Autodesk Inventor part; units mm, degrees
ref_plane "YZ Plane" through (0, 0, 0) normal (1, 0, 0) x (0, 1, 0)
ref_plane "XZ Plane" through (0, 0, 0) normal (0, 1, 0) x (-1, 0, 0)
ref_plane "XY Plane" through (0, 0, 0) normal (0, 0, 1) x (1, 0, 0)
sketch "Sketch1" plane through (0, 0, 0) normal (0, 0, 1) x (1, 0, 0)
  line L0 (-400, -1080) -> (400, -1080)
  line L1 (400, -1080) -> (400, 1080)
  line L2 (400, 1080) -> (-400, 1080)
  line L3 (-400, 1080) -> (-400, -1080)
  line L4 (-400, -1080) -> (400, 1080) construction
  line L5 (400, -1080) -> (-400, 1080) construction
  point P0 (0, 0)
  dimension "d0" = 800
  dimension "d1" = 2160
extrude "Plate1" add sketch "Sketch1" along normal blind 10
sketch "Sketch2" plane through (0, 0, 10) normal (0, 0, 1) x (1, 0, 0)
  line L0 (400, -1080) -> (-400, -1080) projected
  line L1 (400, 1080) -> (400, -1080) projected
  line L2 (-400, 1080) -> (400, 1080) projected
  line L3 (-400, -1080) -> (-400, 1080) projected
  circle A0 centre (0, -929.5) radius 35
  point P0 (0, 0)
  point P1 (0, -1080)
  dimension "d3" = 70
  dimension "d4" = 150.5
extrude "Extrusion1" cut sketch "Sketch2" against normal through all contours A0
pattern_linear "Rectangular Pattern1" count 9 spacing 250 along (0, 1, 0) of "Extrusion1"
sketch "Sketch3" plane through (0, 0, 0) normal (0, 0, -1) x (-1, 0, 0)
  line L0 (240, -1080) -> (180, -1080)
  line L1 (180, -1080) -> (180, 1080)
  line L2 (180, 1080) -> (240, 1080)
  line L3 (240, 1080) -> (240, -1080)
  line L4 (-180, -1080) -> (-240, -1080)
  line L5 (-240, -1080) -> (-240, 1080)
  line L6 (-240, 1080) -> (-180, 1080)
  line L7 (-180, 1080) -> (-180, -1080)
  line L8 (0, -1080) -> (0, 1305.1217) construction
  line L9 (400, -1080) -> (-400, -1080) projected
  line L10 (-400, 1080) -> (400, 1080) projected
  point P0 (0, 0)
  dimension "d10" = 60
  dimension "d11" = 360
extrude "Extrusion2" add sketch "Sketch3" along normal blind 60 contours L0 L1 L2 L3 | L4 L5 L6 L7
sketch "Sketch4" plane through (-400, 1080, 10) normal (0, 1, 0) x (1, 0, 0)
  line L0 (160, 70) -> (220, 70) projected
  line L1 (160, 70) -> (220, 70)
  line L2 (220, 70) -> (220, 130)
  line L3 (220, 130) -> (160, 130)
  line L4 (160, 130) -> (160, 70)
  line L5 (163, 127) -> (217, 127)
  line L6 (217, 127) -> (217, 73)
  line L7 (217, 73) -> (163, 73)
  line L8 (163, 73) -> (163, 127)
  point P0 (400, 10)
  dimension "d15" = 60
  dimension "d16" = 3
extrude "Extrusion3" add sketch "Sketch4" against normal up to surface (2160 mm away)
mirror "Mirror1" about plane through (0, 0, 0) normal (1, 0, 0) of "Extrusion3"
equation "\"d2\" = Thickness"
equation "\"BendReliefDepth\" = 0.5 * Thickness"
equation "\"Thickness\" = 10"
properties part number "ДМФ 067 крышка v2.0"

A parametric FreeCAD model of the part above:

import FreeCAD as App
import Part
import Sketcher

V = App.Vector
Q = App.Units.Quantity


def add_polygon(sketch, points):
    """Adds a closed chain of lines whose ends are joined by coincident constraints."""
    first, n = sketch.GeometryCount, len(points)
    for a, b in zip(points, points[1:] + points[:1]):
        sketch.addGeometry(Part.LineSegment(App.Vector(*a, 0), App.Vector(*b, 0)), False)
    for i in range(n):
        sketch.addConstraint(Sketcher.Constraint("Coincident", first + i, 2, first + (i + 1) % n, 1))

doc = App.newDocument("Part")
body = doc.addObject("PartDesign::Body", "Body")

sketch1 = body.newObject("Sketcher::SketchObject", "Sketch")
sketch1.AttachmentSupport = (doc.getObject("XY_Plane"), [""])
sketch1.MapMode = "FlatFace"
add_polygon(sketch1, [(-400, 1080), (-400, -1080), (400, -1080), (400, 1080)])
sketch1.addConstraint(Sketcher.Constraint("Vertical", 0))
sketch1.addConstraint(Sketcher.Constraint("Horizontal", 1))
sketch1.addConstraint(Sketcher.Constraint("Vertical", 2))
sketch1.addConstraint(Sketcher.Constraint("Horizontal", 3))
sketch1.addConstraint(Sketcher.Constraint("Symmetric", 0, 2, 2, 2, -1, 1))
sketch1.addConstraint(Sketcher.Constraint("DistanceX", 1, 1, 1, 2, Q("800 mm")))
sketch1.addConstraint(Sketcher.Constraint("DistanceY", 0, 2, 0, 1, Q("2160 mm")))
pad1 = body.newObject("PartDesign::Pad", "Pad")
pad1.Profile = sketch1
pad1.Length = 10

sketch2 = body.newObject("Sketcher::SketchObject", "Sketch001")
sketch2.AttachmentSupport = (doc.getObject("XY_Plane"), [""])
sketch2.MapMode = "FlatFace"
sketch2.AttachmentOffset = App.Placement(V(0, 0, 10), App.Rotation())
sketch2.addGeometry(Part.Circle(V(0, -930, 0), V(0, 0, 1), 35), False)
sketch2.addConstraint(Sketcher.Constraint("PointOnObject", 0, 3, -2))
sketch2.addConstraint(Sketcher.Constraint("Diameter", 0, Q("70 mm")))
sketch2.addConstraint(Sketcher.Constraint("DistanceY", 0, 3, -1, 1, Q("929.5 mm")))
pocket1 = body.newObject("PartDesign::Pocket", "Pocket")
pocket1.Profile = sketch2
pocket1.Type = "ThroughAll"
doc.recompute()

linearpattern = body.newObject("PartDesign::LinearPattern", "LinearPattern")
linearpattern.Originals = [pocket1]
linearpattern.Direction = (doc.getObject("Y_Axis"), [""])
linearpattern.Mode = "offset"
linearpattern.Offset = 250
linearpattern.Occurrences = 9
body.Tip = linearpattern

sketch3 = body.newObject("Sketcher::SketchObject", "Sketch002")
sketch3.AttachmentSupport = (doc.getObject("XY_Plane"), [""])
sketch3.MapMode = "FlatFace"
add_polygon(sketch3, [(-180, -1080), (-240, -1080), (-240, 1080), (-180, 1080)])
add_polygon(sketch3, [(240, -1080), (180, -1080), (180, 1080), (240, 1080)])
sketch3.addConstraint(Sketcher.Constraint("Horizontal", 0))
sketch3.addConstraint(Sketcher.Constraint("Vertical", 1))
sketch3.addConstraint(Sketcher.Constraint("Horizontal", 2))
sketch3.addConstraint(Sketcher.Constraint("Vertical", 3))
sketch3.addConstraint(Sketcher.Constraint("Horizontal", 4))
sketch3.addConstraint(Sketcher.Constraint("Vertical", 5))
sketch3.addConstraint(Sketcher.Constraint("Horizontal", 6))
sketch3.addConstraint(Sketcher.Constraint("Vertical", 7))
sketch3.addConstraint(Sketcher.Constraint("Symmetric", 2, 2, 4, 2, -1, 1))
sketch3.addConstraint(Sketcher.Constraint("Symmetric", 0, 2, 6, 2, -1, 1))
sketch3.addConstraint(Sketcher.Constraint("Horizontal", 3, 2, 4, 2))
sketch3.addConstraint(Sketcher.Constraint("DistanceX", 0, 2, 0, 1, Q("60 mm")))
sketch3.addConstraint(Sketcher.Constraint("DistanceX", 3, 2, 4, 2, Q("360 mm")))
sketch3.addConstraint(Sketcher.Constraint("DistanceY", 1, 1, 1, 2, Q("2160 mm")))
pad2 = body.newObject("PartDesign::Pad", "Pad001")
pad2.Profile = sketch3
pad2.Length = 60
pad2.Reversed = True

sketch4 = body.newObject("Sketcher::SketchObject", "Sketch003")
sketch4.AttachmentSupport = (doc.getObject("XZ_Plane"), [""])
sketch4.MapMode = "FlatFace"
sketch4.AttachmentOffset = App.Placement(V(0, 0, -1080), App.Rotation())
add_polygon(sketch4, [(-240, -120), (-240, -60), (-180, -60), (-180, -120)])
add_polygon(sketch4, [(-237, -63), (-237, -117), (-183, -117), (-183, -63)])
sketch4.addConstraint(Sketcher.Constraint("Vertical", 0))
sketch4.addConstraint(Sketcher.Constraint("Horizontal", 1))
sketch4.addConstraint(Sketcher.Constraint("Vertical", 2))
sketch4.addConstraint(Sketcher.Constraint("Horizontal", 3))
sketch4.addConstraint(Sketcher.Constraint("Vertical", 4))
sketch4.addConstraint(Sketcher.Constraint("Horizontal", 5))
sketch4.addConstraint(Sketcher.Constraint("Vertical", 6))
sketch4.addConstraint(Sketcher.Constraint("Horizontal", 7))
sketch4.addConstraint(Sketcher.Constraint("Equal", 3, 0))
sketch4.addConstraint(Sketcher.Constraint("Equal", 7, 4))
sketch4.addConstraint(Sketcher.Constraint("DistanceX", 1, 1, 1, 2, Q("60 mm")))
sketch4.addConstraint(Sketcher.Constraint("DistanceY", 0, 2, -1, 1, Q("60 mm")))
sketch4.addConstraint(Sketcher.Constraint("DistanceX", 3, 2, 4, 2, Q("3 mm")))
sketch4.addConstraint(Sketcher.Constraint("DistanceY", 3, 2, 4, 2, Q("3 mm")))
sketch4.addConstraint(Sketcher.Constraint("DistanceX", 5, 2, 2, 2, Q("3 mm")))
sketch4.addConstraint(Sketcher.Constraint("DistanceX", 0, 2, -1, 1, Q("240 mm")))
pad3 = body.newObject("PartDesign::Pad", "Pad002")
pad3.Profile = sketch4
pad3.Length = 2160
doc.recompute()

mirrored = body.newObject("PartDesign::Mirrored", "Mirrored")
mirrored.Originals = [pad3]
mirrored.MirrorPlane = (doc.getObject("YZ_Plane"), [""])
body.Tip = mirrored

doc.recompute()
